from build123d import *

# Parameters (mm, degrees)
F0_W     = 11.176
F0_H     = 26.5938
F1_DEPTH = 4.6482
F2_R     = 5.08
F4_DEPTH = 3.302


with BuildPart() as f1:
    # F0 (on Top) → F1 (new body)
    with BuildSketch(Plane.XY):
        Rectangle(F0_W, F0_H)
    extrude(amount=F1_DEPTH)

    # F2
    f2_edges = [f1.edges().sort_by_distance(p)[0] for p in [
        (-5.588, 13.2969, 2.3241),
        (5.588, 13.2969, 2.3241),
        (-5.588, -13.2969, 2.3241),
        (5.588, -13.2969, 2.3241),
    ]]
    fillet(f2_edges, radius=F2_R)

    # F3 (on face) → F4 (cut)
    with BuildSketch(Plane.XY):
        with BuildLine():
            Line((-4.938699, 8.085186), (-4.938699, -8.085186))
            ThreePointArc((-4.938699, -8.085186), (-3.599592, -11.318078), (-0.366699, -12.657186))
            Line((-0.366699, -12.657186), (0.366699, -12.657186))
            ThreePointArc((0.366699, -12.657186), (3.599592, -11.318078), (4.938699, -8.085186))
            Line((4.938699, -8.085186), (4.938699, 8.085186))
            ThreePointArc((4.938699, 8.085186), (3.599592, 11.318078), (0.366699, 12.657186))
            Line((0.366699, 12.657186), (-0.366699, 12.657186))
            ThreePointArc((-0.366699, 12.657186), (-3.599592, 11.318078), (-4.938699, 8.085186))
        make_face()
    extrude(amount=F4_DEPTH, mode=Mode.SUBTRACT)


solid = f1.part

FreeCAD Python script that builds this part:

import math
import FreeCAD as App
import Part
import Sketcher
Q = App.Units.Quantity


def edges_at(feature, points):
    """Names of the edges that pass closest to the given points."""
    edges = feature.Shape.Edges
    near = lambda p: min(range(len(edges)), key=lambda i: edges[i].distToShape(Part.Vertex(*p))[0])
    return sorted({f"Edge{near(p) + 1}" for p in points})


def add_polygon(sketch, points):
    """Adds a closed chain of lines whose ends are joined by coincident constraints."""
    first, n = sketch.GeometryCount, len(points)
    for a, b in zip(points, points[1:] + points[:1]):
        sketch.addGeometry(Part.LineSegment(App.Vector(*a, 0), App.Vector(*b, 0)), False)
    for i in range(n):
        sketch.addConstraint(Sketcher.Constraint("Coincident", first + i, 2, first + (i + 1) % n, 1))

doc = App.newDocument("Part")
body = doc.addObject("PartDesign::Body", "Body")

# Sketch on XY plane
sketch1 = doc.addObject("Sketcher::SketchObject", "Sketch")
body.addObject(sketch1)
sketch1.AttachmentSupport = (doc.XY_Plane, [""])
sketch1.MapMode = "FlatFace"
add_polygon(sketch1, [(-6, 13), (-6, -13), (6, -13), (6, 13)])  # lines 0-3
sketch1.addConstraint([
    Sketcher.Constraint("Vertical", 0),
    Sketcher.Constraint("Horizontal", 1),
    Sketcher.Constraint("Vertical", 2),
    Sketcher.Constraint("Horizontal", 3),
    Sketcher.Constraint("Symmetric", 0, 2, 2, 2, -1, 1),
    Sketcher.Constraint("DistanceX", 1, 1, 1, 2, Q("0.44 in")),
    Sketcher.Constraint("DistanceY", 0, 2, 0, 1, Q("1.047 in")),
])
pad1 = doc.addObject("PartDesign::Pad", "Pad")
body.addObject(pad1)
pad1.Profile = sketch1
pad1.Length = Q("0.183 in")
doc.recompute()

fillet = doc.addObject("PartDesign::Fillet", "Fillet")
body.addObject(fillet)
fillet.Base = (pad1, edges_at(pad1, [
    (-5.588, 13.297, 2.324),
    (5.588, 13.297, 2.324),
    (-5.588, -13.297, 2.324),
    (5.588, -13.297, 2.324),
]))
fillet.Radius = Q("0.2 in")

# Sketch on XY plane
sketch2 = doc.addObject("Sketcher::SketchObject", "Sketch001")
body.addObject(sketch2)
sketch2.AttachmentSupport = (doc.XY_Plane, [""])
sketch2.MapMode = "FlatFace"
sketch2.addGeometry([
    Part.LineSegment(App.Vector(-4.9, 8.1, 0), App.Vector(-4.9, -8.1, 0)),  # 0
    Part.ArcOfCircle(Part.Circle(App.Vector(-0.4, -8.1, 0), App.Vector(0, 0, 1), 4.6), math.radians(180), math.radians(270)),  # 1
    Part.LineSegment(App.Vector(-0.4, -12.7, 0), App.Vector(0.4, -12.7, 0)),  # 2
    Part.ArcOfCircle(Part.Circle(App.Vector(0.4, -8.1, 0), App.Vector(0, 0, 1), 4.6), math.radians(-90), math.radians(0)),  # 3
    Part.LineSegment(App.Vector(4.9, -8.1, 0), App.Vector(4.9, 8.1, 0)),  # 4
    Part.ArcOfCircle(Part.Circle(App.Vector(0.4, 8.1, 0), App.Vector(0, 0, 1), 4.6), math.radians(0), math.radians(90)),  # 5
    Part.LineSegment(App.Vector(0.4, 12.7, 0), App.Vector(-0.4, 12.7, 0)),  # 6
    Part.ArcOfCircle(Part.Circle(App.Vector(-0.4, 8.1, 0), App.Vector(0, 0, 1), 4.6), math.radians(90), math.radians(180)),  # 7
], False)
sketch2.addConstraint([
    Sketcher.Constraint("Tangent", 0, 2, 1, 1),
    Sketcher.Constraint("Tangent", 1, 2, 2, 1),
    Sketcher.Constraint("Tangent", 2, 2, 3, 1),
    Sketcher.Constraint("Tangent", 3, 2, 4, 1),
    Sketcher.Constraint("Tangent", 4, 2, 5, 1),
    Sketcher.Constraint("Tangent", 5, 2, 6, 1),
    Sketcher.Constraint("Tangent", 6, 2, 7, 1),
    Sketcher.Constraint("Tangent", 7, 2, 0, 1),
    Sketcher.Constraint("Vertical", 0),
    Sketcher.Constraint("Horizontal", 2),
    Sketcher.Constraint("Vertical", 4),
    Sketcher.Constraint("Horizontal", 6),
    Sketcher.Constraint("Equal", 1, 3),
    Sketcher.Constraint("Equal", 3, 5),
    Sketcher.Constraint("Equal", 5, 7),
    Sketcher.Constraint("Symmetric", 1, 3, 5, 3, -1, 1),
    Sketcher.Constraint("Radius", 1, Q("0.18 in")),
    Sketcher.Constraint("DistanceX", 1, 3, -1, 1, Q("0.3667 mm")),
    Sketcher.Constraint("DistanceY", 0, 2, 0, 1, Q("16.170372 mm")),
])
pocket1 = doc.addObject("PartDesign::Pocket", "Pocket")
body.addObject(pocket1)
pocket1.Profile = sketch2
pocket1.Length = Q("0.13 in")
pocket1.Reversed = True

doc.recompute()
